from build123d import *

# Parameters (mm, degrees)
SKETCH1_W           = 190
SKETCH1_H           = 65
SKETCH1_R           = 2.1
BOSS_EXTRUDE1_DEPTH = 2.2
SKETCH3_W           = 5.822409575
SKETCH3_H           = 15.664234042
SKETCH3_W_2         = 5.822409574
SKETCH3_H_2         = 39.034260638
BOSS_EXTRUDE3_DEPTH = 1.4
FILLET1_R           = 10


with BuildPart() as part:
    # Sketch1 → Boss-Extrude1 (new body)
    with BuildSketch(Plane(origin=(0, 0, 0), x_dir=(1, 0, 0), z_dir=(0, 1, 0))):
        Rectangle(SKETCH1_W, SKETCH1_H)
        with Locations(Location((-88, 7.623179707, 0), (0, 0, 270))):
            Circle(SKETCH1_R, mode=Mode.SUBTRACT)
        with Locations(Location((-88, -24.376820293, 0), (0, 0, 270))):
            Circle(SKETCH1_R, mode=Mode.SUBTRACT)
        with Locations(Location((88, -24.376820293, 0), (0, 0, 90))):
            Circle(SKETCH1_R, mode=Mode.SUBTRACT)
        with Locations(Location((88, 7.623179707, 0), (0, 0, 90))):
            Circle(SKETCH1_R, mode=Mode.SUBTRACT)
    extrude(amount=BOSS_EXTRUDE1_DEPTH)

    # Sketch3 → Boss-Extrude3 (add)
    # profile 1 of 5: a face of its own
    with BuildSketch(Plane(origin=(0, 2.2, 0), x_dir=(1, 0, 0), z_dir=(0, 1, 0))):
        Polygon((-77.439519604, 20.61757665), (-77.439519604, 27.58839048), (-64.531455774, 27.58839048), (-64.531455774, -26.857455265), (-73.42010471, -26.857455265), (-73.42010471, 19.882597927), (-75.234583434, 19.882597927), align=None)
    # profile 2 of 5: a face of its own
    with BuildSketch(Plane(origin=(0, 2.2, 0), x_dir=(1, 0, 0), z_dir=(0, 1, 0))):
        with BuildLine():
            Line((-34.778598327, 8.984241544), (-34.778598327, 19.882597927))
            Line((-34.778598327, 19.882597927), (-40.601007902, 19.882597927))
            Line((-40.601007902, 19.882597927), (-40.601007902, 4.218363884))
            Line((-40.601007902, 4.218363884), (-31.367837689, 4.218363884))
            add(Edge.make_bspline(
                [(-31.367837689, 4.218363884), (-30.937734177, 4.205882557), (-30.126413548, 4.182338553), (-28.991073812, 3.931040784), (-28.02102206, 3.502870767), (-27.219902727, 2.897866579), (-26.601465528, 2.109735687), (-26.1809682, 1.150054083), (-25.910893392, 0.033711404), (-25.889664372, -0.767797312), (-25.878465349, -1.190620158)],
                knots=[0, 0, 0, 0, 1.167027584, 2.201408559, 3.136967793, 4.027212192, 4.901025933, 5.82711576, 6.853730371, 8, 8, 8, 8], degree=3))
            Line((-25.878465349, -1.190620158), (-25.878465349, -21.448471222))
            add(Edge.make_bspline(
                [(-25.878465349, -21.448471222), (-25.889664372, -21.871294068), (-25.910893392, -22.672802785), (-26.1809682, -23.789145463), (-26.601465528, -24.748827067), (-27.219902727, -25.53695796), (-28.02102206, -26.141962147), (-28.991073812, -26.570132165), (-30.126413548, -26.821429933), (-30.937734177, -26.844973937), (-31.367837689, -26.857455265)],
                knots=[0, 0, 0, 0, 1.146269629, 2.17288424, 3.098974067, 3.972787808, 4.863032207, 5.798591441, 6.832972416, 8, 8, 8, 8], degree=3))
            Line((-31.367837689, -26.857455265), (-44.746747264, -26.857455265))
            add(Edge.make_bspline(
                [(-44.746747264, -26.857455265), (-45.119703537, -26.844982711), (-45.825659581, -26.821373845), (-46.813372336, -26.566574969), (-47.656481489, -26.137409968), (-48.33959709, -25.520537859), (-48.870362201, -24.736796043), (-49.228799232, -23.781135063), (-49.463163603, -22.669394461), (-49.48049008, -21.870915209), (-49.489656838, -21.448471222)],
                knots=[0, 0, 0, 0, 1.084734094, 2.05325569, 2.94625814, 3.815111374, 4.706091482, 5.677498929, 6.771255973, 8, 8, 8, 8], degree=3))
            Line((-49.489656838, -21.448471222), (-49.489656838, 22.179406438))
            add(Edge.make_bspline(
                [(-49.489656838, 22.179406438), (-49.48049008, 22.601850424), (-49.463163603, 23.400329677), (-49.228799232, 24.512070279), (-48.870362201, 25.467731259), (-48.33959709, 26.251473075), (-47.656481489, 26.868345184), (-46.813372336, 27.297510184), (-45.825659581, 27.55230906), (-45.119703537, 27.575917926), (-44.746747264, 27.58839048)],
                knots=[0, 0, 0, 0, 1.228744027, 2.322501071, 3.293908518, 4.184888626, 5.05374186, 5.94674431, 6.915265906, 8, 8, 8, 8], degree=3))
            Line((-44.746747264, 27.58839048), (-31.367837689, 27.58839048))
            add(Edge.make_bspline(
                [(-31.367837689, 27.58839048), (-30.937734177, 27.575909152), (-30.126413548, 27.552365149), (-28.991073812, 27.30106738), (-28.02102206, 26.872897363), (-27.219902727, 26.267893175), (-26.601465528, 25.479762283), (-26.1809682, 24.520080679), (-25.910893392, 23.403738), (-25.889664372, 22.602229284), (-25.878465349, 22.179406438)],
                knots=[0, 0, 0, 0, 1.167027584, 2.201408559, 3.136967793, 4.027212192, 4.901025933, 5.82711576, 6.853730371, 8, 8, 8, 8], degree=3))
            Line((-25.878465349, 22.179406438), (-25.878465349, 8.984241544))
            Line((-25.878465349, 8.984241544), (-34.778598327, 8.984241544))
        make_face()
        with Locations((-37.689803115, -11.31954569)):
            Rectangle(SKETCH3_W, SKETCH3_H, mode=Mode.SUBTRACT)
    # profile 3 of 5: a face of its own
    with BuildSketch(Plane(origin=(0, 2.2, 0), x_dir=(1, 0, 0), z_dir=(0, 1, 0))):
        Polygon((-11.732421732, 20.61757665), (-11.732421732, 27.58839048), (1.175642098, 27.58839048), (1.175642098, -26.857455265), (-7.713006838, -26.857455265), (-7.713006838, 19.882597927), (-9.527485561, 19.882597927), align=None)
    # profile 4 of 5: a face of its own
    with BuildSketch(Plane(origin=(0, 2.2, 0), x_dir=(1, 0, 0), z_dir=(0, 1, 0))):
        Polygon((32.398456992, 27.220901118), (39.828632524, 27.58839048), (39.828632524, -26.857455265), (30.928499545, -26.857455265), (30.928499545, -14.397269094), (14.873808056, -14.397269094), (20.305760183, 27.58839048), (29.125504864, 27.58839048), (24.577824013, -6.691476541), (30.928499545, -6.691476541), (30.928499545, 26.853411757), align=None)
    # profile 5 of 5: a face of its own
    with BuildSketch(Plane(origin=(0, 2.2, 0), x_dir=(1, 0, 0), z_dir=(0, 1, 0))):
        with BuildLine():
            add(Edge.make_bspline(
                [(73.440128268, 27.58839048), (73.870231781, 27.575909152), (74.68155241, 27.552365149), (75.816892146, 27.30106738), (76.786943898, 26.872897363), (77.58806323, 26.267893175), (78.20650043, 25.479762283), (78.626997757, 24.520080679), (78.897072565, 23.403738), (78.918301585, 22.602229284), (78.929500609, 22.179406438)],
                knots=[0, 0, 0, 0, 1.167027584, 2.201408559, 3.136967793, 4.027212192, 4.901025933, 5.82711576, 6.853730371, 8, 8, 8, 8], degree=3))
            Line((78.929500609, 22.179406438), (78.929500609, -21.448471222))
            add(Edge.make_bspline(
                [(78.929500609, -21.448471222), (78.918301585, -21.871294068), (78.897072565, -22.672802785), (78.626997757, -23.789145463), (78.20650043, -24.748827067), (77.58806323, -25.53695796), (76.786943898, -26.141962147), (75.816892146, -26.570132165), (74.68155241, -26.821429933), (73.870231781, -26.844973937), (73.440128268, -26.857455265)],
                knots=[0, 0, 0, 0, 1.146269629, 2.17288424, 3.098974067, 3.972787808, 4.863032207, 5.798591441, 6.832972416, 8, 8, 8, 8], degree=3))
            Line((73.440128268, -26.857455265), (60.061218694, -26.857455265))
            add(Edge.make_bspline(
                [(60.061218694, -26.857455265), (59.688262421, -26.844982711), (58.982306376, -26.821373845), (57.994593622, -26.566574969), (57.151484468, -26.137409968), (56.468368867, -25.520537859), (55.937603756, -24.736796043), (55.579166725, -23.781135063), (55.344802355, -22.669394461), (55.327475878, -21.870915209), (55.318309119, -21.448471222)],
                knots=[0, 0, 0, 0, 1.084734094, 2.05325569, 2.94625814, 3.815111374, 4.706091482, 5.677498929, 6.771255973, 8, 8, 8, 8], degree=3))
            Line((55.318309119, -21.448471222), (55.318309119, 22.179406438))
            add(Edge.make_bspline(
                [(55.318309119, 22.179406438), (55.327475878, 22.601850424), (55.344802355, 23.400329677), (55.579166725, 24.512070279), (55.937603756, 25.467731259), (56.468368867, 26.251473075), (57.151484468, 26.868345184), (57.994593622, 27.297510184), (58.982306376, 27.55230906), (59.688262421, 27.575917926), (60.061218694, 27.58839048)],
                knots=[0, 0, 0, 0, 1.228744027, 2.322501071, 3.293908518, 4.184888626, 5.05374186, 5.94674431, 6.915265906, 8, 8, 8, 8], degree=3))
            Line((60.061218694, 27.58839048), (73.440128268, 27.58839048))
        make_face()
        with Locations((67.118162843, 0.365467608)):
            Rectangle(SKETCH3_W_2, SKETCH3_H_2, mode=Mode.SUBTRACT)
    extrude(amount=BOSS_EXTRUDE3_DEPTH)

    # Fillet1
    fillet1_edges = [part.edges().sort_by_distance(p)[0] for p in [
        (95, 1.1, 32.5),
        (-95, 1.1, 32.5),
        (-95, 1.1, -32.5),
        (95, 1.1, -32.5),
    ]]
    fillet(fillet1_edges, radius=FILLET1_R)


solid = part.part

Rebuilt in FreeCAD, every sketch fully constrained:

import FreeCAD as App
import Part
import Sketcher
Q = App.Units.Quantity


def edges_at(feature, points):
    """Names of the edges that pass closest to the given points."""
    edges = feature.Shape.Edges
    near = lambda p: min(range(len(edges)), key=lambda i: edges[i].distToShape(Part.Vertex(*p))[0])
    return sorted({f"Edge{near(p) + 1}" for p in points})

doc = App.newDocument("Part")
params = doc.addObject("Spreadsheet::Sheet", "Params")
for row, (alias, value) in enumerate([
    ("sketch1_diameter", "4.2 mm"),
    ("sketch1_width", "190 mm"),
    ("sketch1_height", "65 mm"),
    ("pad1_length", "2.2 mm"),
    ("pad2_length", "1.4 mm"),
    ("fillet_radius", "10 mm"),
], start=1):
    params.set(f"A{row}", alias)
    params.set(f"B{row}", "=" + value)
    params.setAlias(f"B{row}", alias)

body = doc.addObject("PartDesign::Body", "Body")

# Sketch on XZ plane
sketch1 = body.newObject("Sketcher::SketchObject", "Sketch")
sketch1.AttachmentSupport = (doc.getObject("XZ_Plane"), [""])
sketch1.MapMode = "FlatFace"
sketch1.addGeometry(Part.LineSegment(App.Vector(-95, -32.5, 0), App.Vector(-95, 32.5, 0)), False)
sketch1.addGeometry(Part.LineSegment(App.Vector(-95, 32.5, 0), App.Vector(95, 32.5, 0)), False)
sketch1.addGeometry(Part.LineSegment(App.Vector(95, 32.5, 0), App.Vector(95, -32.5, 0)), False)
sketch1.addGeometry(Part.LineSegment(App.Vector(95, -32.5, 0), App.Vector(-95, -32.5, 0)), False)
sketch1.addGeometry(Part.Circle(App.Vector(-88, 24.4, 0), App.Vector(0, 0, 1), 2.1), False)
sketch1.addGeometry(Part.Circle(App.Vector(88, 24.4, 0), App.Vector(0, 0, 1), 2.1), False)
sketch1.addGeometry(Part.Circle(App.Vector(-88, -7.6, 0), App.Vector(0, 0, 1), 2.1), False)
sketch1.addGeometry(Part.Circle(App.Vector(88, -7.6, 0), App.Vector(0, 0, 1), 2.1), False)
sketch1.addConstraint(Sketcher.Constraint("Coincident", 0, 2, 1, 1))
sketch1.addConstraint(Sketcher.Constraint("Coincident", 1, 2, 2, 1))
sketch1.addConstraint(Sketcher.Constraint("Coincident", 2, 2, 3, 1))
sketch1.addConstraint(Sketcher.Constraint("Coincident", 3, 2, 0, 1))
sketch1.addConstraint(Sketcher.Constraint("Vertical", 0))
sketch1.addConstraint(Sketcher.Constraint("Horizontal", 1))
sketch1.addConstraint(Sketcher.Constraint("Vertical", 2))
sketch1.addConstraint(Sketcher.Constraint("Horizontal", 3))
sketch1.addConstraint(Sketcher.Constraint("Equal", 4, 5))
sketch1.addConstraint(Sketcher.Constraint("Equal", 5, 6))
sketch1.addConstraint(Sketcher.Constraint("Equal", 6, 7))
sketch1.addConstraint(Sketcher.Constraint("Symmetric", 0, 2, 2, 2, -1, 1))
sketch1.addConstraint(Sketcher.Constraint("Symmetric", 4, 3, 5, 3, -2))
sketch1.addConstraint(Sketcher.Constraint("Symmetric", 6, 3, 7, 3, -2))
sketch1.addConstraint(Sketcher.Constraint("Vertical", 4, 3, 6, 3))
sketch1.addConstraint(Sketcher.Constraint("Diameter", 4, Q("4.2 mm")))
sketch1.addConstraint(Sketcher.Constraint("DistanceX", 1, 1, 1, 2, Q("190 mm")))
sketch1.addConstraint(Sketcher.Constraint("DistanceY", 0, 1, 0, 2, Q("65 mm")))
sketch1.addConstraint(Sketcher.Constraint("DistanceX", 4, 3, -1, 1, Q("88 mm")))
sketch1.addConstraint(Sketcher.Constraint("DistanceY", 6, 3, 4, 3, Q("32 mm")))
sketch1.addConstraint(Sketcher.Constraint("DistanceY", -1, 1, 4, 3, Q("24.37682 mm")))
sketch1.setExpression("Constraints[15]", "Params.sketch1_diameter")
sketch1.setExpression("Constraints[16]", "Params.sketch1_width")
sketch1.setExpression("Constraints[17]", "Params.sketch1_height")
pad1 = body.newObject("PartDesign::Pad", "Pad")
pad1.Profile = sketch1
pad1.setExpression("Length", "Params.pad1_length")
pad1.Reversed = True

# Sketch on XZ plane
sketch2 = body.newObject("Sketcher::SketchObject", "Sketch001")
sketch2.AttachmentSupport = (doc.getObject("XZ_Plane"), [""])
sketch2.MapMode = "FlatFace"
sketch2.AttachmentOffset = App.Placement(App.Vector(0, 0, -2.2), App.Rotation())
sketch2.addGeometry(Part.LineSegment(App.Vector(-77.43952, -27.58839, 0), App.Vector(-77.43952, -20.617577, 0)), False)
sketch2.addGeometry(Part.LineSegment(App.Vector(-77.43952, -20.617577, 0), App.Vector(-75.234583, -19.882598, 0)), False)
sketch2.addGeometry(Part.LineSegment(App.Vector(-75.234583, -19.882598, 0), App.Vector(-73.420105, -19.882598, 0)), False)
sketch2.addGeometry(Part.LineSegment(App.Vector(-73.420105, -19.882598, 0), App.Vector(-73.420105, 26.857455, 0)), False)
sketch2.addGeometry(Part.LineSegment(App.Vector(-73.420105, 26.857455, 0), App.Vector(-64.531456, 26.857455, 0)), False)
sketch2.addGeometry(Part.LineSegment(App.Vector(-64.531456, 26.857455, 0), App.Vector(-64.531456, -27.58839, 0)), False)
sketch2.addGeometry(Part.LineSegment(App.Vector(-64.531456, -27.58839, 0), App.Vector(-77.43952, -27.58839, 0)), False)
sketch2.addGeometry(Part.LineSegment(App.Vector(-34.778598, -19.882598, 0), App.Vector(-34.778598, -8.984242, 0)), False)
sketch2.addGeometry(Part.LineSegment(App.Vector(-34.778598, -8.984242, 0), App.Vector(-25.878465, -8.984242, 0)), False)
sketch2.addGeometry(Part.LineSegment(App.Vector(-25.878465, -8.984242, 0), App.Vector(-25.878465, -22.179406, 0)), False)
sketch2.addGeometry(Part.BSplineCurve([App.Vector(-31.367838, -27.58839, 0), App.Vector(-30.937734, -27.575909, 0), App.Vector(-30.126414, -27.552365, 0), App.Vector(-28.991074, -27.301067, 0), App.Vector(-28.021022, -26.872897, 0), App.Vector(-27.219903, -26.267893, 0), App.Vector(-26.601466, -25.479762, 0), App.Vector(-26.180968, -24.520081, 0), App.Vector(-25.910893, -23.403738, 0), App.Vector(-25.889664, -22.602229, 0), App.Vector(-25.878465, -22.179406, 0)], [4, 1, 1, 1, 1, 1, 1, 1, 4], [0, 1.167027584, 2.201408559, 3.136967793, 4.027212192, 4.901025933, 5.82711576, 6.853730371, 8], False, 3, [1, 1, 1, 1, 1, 1, 1, 1, 1, 1, 1], False), False)
sketch2.addGeometry(Part.LineSegment(App.Vector(-31.367838, -27.58839, 0), App.Vector(-44.746747, -27.58839, 0)), False)
sketch2.addGeometry(Part.BSplineCurve([App.Vector(-49.489657, -22.179406, 0), App.Vector(-49.48049, -22.60185, 0), App.Vector(-49.463164, -23.40033, 0), App.Vector(-49.228799, -24.51207, 0), App.Vector(-48.870362, -25.467731, 0), App.Vector(-48.339597, -26.251473, 0), App.Vector(-47.656481, -26.868345, 0), App.Vector(-46.813372, -27.29751, 0), App.Vector(-45.82566, -27.552309, 0), App.Vector(-45.119704, -27.575918, 0), App.Vector(-44.746747, -27.58839, 0)], [4, 1, 1, 1, 1, 1, 1, 1, 4], [0, 1.228744027, 2.322501071, 3.293908518, 4.184888626, 5.05374186, 5.94674431, 6.915265906, 8], False, 3, [1, 1, 1, 1, 1, 1, 1, 1, 1, 1, 1], False), False)
sketch2.addGeometry(Part.LineSegment(App.Vector(-49.489657, -22.179406, 0), App.Vector(-49.489657, 21.448471, 0)), False)
sketch2.addGeometry(Part.BSplineCurve([App.Vector(-44.746747, 26.857455, 0), App.Vector(-45.119704, 26.844983, 0), App.Vector(-45.82566, 26.821374, 0), App.Vector(-46.813372, 26.566575, 0), App.Vector(-47.656481, 26.13741, 0), App.Vector(-48.339597, 25.520538, 0), App.Vector(-48.870362, 24.736796, 0), App.Vector(-49.228799, 23.781135, 0), App.Vector(-49.463164, 22.669394, 0), App.Vector(-49.48049, 21.870915, 0), App.Vector(-49.489657, 21.448471, 0)], [4, 1, 1, 1, 1, 1, 1, 1, 4], [0, 1.084734094, 2.05325569, 2.94625814, 3.815111374, 4.706091482, 5.677498929, 6.771255973, 8], False, 3, [1, 1, 1, 1, 1, 1, 1, 1, 1, 1, 1], False), False)
sketch2.addGeometry(Part.LineSegment(App.Vector(-44.746747, 26.857455, 0), App.Vector(-31.367838, 26.857455, 0)), False)
sketch2.addGeometry(Part.BSplineCurve([App.Vector(-25.878465, 21.448471, 0), App.Vector(-25.889664, 21.871294, 0), App.Vector(-25.910893, 22.672803, 0), App.Vector(-26.180968, 23.789145, 0), App.Vector(-26.601466, 24.748827, 0), App.Vector(-27.219903, 25.536958, 0), App.Vector(-28.021022, 26.141962, 0), App.Vector(-28.991074, 26.570132, 0), App.Vector(-30.126414, 26.82143, 0), App.Vector(-30.937734, 26.844974, 0), App.Vector(-31.367838, 26.857455, 0)], [4, 1, 1, 1, 1, 1, 1, 1, 4], [0, 1.146269629, 2.17288424, 3.098974067, 3.972787808, 4.863032207, 5.798591441, 6.832972416, 8], False, 3, [1, 1, 1, 1, 1, 1, 1, 1, 1, 1, 1], False), False)
sketch2.addGeometry(Part.LineSegment(App.Vector(-25.878465, 21.448471, 0), App.Vector(-25.878465, 1.19062, 0)), False)
sketch2.addGeometry(Part.BSplineCurve([App.Vector(-31.367838, -4.218364, 0), App.Vector(-30.937734, -4.205883, 0), App.Vector(-30.126414, -4.182339, 0), App.Vector(-28.991074, -3.931041, 0), App.Vector(-28.021022, -3.502871, 0), App.Vector(-27.219903, -2.897867, 0), App.Vector(-26.601466, -2.109736, 0), App.Vector(-26.180968, -1.150054, 0), App.Vector(-25.910893, -0.033711, 0), App.Vector(-25.889664, 0.767797, 0), App.Vector(-25.878465, 1.19062, 0)], [4, 1, 1, 1, 1, 1, 1, 1, 4], [0, 1.167027584, 2.201408559, 3.136967793, 4.027212192, 4.901025933, 5.82711576, 6.853730371, 8], False, 3, [1, 1, 1, 1, 1, 1, 1, 1, 1, 1, 1], False), False)
sketch2.addGeometry(Part.LineSegment(App.Vector(-31.367838, -4.218364, 0), App.Vector(-40.601008, -4.218364, 0)), False)
sketch2.addGeometry(Part.LineSegment(App.Vector(-40.601008, -4.218364, 0), App.Vector(-40.601008, -19.882598, 0)), False)
sketch2.addGeometry(Part.LineSegment(App.Vector(-40.601008, -19.882598, 0), App.Vector(-34.778598, -19.882598, 0)), False)
sketch2.addGeometry(Part.LineSegment(App.Vector(-40.601008, 19.151663, 0), App.Vector(-40.601008, 3.487429, 0)), False)
sketch2.addGeometry(Part.LineSegment(App.Vector(-40.601008, 3.487429, 0), App.Vector(-34.778598, 3.487429, 0)), False)
sketch2.addGeometry(Part.LineSegment(App.Vector(-34.778598, 3.487429, 0), App.Vector(-34.778598, 19.151663, 0)), False)
sketch2.addGeometry(Part.LineSegment(App.Vector(-34.778598, 19.151663, 0), App.Vector(-40.601008, 19.151663, 0)), False)
sketch2.addGeometry(Part.LineSegment(App.Vector(-11.732422, -27.58839, 0), App.Vector(-11.732422, -20.617577, 0)), False)
sketch2.addGeometry(Part.LineSegment(App.Vector(-11.732422, -20.617577, 0), App.Vector(-9.527486, -19.882598, 0)), False)
sketch2.addGeometry(Part.LineSegment(App.Vector(-9.527486, -19.882598, 0), App.Vector(-7.713007, -19.882598, 0)), False)
sketch2.addGeometry(Part.LineSegment(App.Vector(-7.713007, -19.882598, 0), App.Vector(-7.713007, 26.857455, 0)), False)
sketch2.addGeometry(Part.LineSegment(App.Vector(-7.713007, 26.857455, 0), App.Vector(1.175642, 26.857455, 0)), False)
sketch2.addGeometry(Part.LineSegment(App.Vector(1.175642, 26.857455, 0), App.Vector(1.175642, -27.58839, 0)), False)
sketch2.addGeometry(Part.LineSegment(App.Vector(1.175642, -27.58839, 0), App.Vector(-11.732422, -27.58839, 0)), False)
sketch2.addGeometry(Part.LineSegment(App.Vector(39.828633, -27.58839, 0), App.Vector(32.398457, -27.220901, 0)), False)
sketch2.addGeometry(Part.LineSegment(App.Vector(32.398457, -27.220901, 0), App.Vector(30.9285, -26.853412, 0)), False)
sketch2.addGeometry(Part.LineSegment(App.Vector(30.9285, -26.853412, 0), App.Vector(30.9285, 6.691477, 0)), False)
sketch2.addGeometry(Part.LineSegment(App.Vector(30.9285, 6.691477, 0), App.Vector(24.577824, 6.691477, 0)), False)
sketch2.addGeometry(Part.LineSegment(App.Vector(24.577824, 6.691477, 0), App.Vector(29.125505, -27.58839, 0)), False)
sketch2.addGeometry(Part.LineSegment(App.Vector(29.125505, -27.58839, 0), App.Vector(20.30576, -27.58839, 0)), False)
sketch2.addGeometry(Part.LineSegment(App.Vector(20.30576, -27.58839, 0), App.Vector(14.873808, 14.397269, 0)), False)
sketch2.addGeometry(Part.LineSegment(App.Vector(14.873808, 14.397269, 0), App.Vector(30.9285, 14.397269, 0)), False)
sketch2.addGeometry(Part.LineSegment(App.Vector(30.9285, 14.397269, 0), App.Vector(30.9285, 26.857455, 0)), False)
sketch2.addGeometry(Part.LineSegment(App.Vector(30.9285, 26.857455, 0), App.Vector(39.828633, 26.857455, 0)), False)
sketch2.addGeometry(Part.LineSegment(App.Vector(39.828633, 26.857455, 0), App.Vector(39.828633, -27.58839, 0)), False)
sketch2.addGeometry(Part.BSplineCurve([App.Vector(73.440128, -27.58839, 0), App.Vector(73.870232, -27.575909, 0), App.Vector(74.681552, -27.552365, 0), App.Vector(75.816892, -27.301067, 0), App.Vector(76.786944, -26.872897, 0), App.Vector(77.588063, -26.267893, 0), App.Vector(78.2065, -25.479762, 0), App.Vector(78.626998, -24.520081, 0), App.Vector(78.897073, -23.403738, 0), App.Vector(78.918302, -22.602229, 0), App.Vector(78.929501, -22.179406, 0)], [4, 1, 1, 1, 1, 1, 1, 1, 4], [0, 1.167027584, 2.201408559, 3.136967793, 4.027212192, 4.901025933, 5.82711576, 6.853730371, 8], False, 3, [1, 1, 1, 1, 1, 1, 1, 1, 1, 1, 1], False), False)
sketch2.addGeometry(Part.LineSegment(App.Vector(73.440128, -27.58839, 0), App.Vector(60.061219, -27.58839, 0)), False)
sketch2.addGeometry(Part.BSplineCurve([App.Vector(55.318309, -22.179406, 0), App.Vector(55.327476, -22.60185, 0), App.Vector(55.344802, -23.40033, 0), App.Vector(55.579167, -24.51207, 0), App.Vector(55.937604, -25.467731, 0), App.Vector(56.468369, -26.251473, 0), App.Vector(57.151484, -26.868345, 0), App.Vector(57.994594, -27.29751, 0), App.Vector(58.982306, -27.552309, 0), App.Vector(59.688262, -27.575918, 0), App.Vector(60.061219, -27.58839, 0)], [4, 1, 1, 1, 1, 1, 1, 1, 4], [0, 1.228744027, 2.322501071, 3.293908518, 4.184888626, 5.05374186, 5.94674431, 6.915265906, 8], False, 3, [1, 1, 1, 1, 1, 1, 1, 1, 1, 1, 1], False), False)
sketch2.addGeometry(Part.LineSegment(App.Vector(55.318309, -22.179406, 0), App.Vector(55.318309, 21.448471, 0)), False)
sketch2.addGeometry(Part.BSplineCurve([App.Vector(60.061219, 26.857455, 0), App.Vector(59.688262, 26.844983, 0), App.Vector(58.982306, 26.821374, 0), App.Vector(57.994594, 26.566575, 0), App.Vector(57.151484, 26.13741, 0), App.Vector(56.468369, 25.520538, 0), App.Vector(55.937604, 24.736796, 0), App.Vector(55.579167, 23.781135, 0), App.Vector(55.344802, 22.669394, 0), App.Vector(55.327476, 21.870915, 0), App.Vector(55.318309, 21.448471, 0)], [4, 1, 1, 1, 1, 1, 1, 1, 4], [0, 1.084734094, 2.05325569, 2.94625814, 3.815111374, 4.706091482, 5.677498929, 6.771255973, 8], False, 3, [1, 1, 1, 1, 1, 1, 1, 1, 1, 1, 1], False), False)
sketch2.addGeometry(Part.LineSegment(App.Vector(60.061219, 26.857455, 0), App.Vector(73.440128, 26.857455, 0)), False)
sketch2.addGeometry(Part.BSplineCurve([App.Vector(78.929501, 21.448471, 0), App.Vector(78.918302, 21.871294, 0), App.Vector(78.897073, 22.672803, 0), App.Vector(78.626998, 23.789145, 0), App.Vector(78.2065, 24.748827, 0), App.Vector(77.588063, 25.536958, 0), App.Vector(76.786944, 26.141962, 0), App.Vector(75.816892, 26.570132, 0), App.Vector(74.681552, 26.82143, 0), App.Vector(73.870232, 26.844974, 0), App.Vector(73.440128, 26.857455, 0)], [4, 1, 1, 1, 1, 1, 1, 1, 4], [0, 1.146269629, 2.17288424, 3.098974067, 3.972787808, 4.863032207, 5.798591441, 6.832972416, 8], False, 3, [1, 1, 1, 1, 1, 1, 1, 1, 1, 1, 1], False), False)
sketch2.addGeometry(Part.LineSegment(App.Vector(78.929501, 21.448471, 0), App.Vector(78.929501, -22.179406, 0)), False)
sketch2.addGeometry(Part.LineSegment(App.Vector(64.206958, 19.151663, 0), App.Vector(64.206958, -19.882598, 0)), False)
sketch2.addGeometry(Part.LineSegment(App.Vector(64.206958, -19.882598, 0), App.Vector(70.029368, -19.882598, 0)), False)
sketch2.addGeometry(Part.LineSegment(App.Vector(70.029368, -19.882598, 0), App.Vector(70.029368, 19.151663, 0)), False)
sketch2.addGeometry(Part.LineSegment(App.Vector(70.029368, 19.151663, 0), App.Vector(64.206958, 19.151663, 0)), False)
sketch2.addConstraint(Sketcher.Constraint("Block", 10))
sketch2.addConstraint(Sketcher.Constraint("Block", 12))
sketch2.addConstraint(Sketcher.Constraint("Block", 14))
sketch2.addConstraint(Sketcher.Constraint("Block", 16))
sketch2.addConstraint(Sketcher.Constraint("Block", 18))
sketch2.addConstraint(Sketcher.Constraint("Block", 44))
sketch2.addConstraint(Sketcher.Constraint("Block", 46))
sketch2.addConstraint(Sketcher.Constraint("Block", 48))
sketch2.addConstraint(Sketcher.Constraint("Block", 50))
sketch2.addConstraint(Sketcher.Constraint("Coincident", 0, 2, 1, 1))
sketch2.addConstraint(Sketcher.Constraint("Coincident", 1, 2, 2, 1))
sketch2.addConstraint(Sketcher.Constraint("Coincident", 2, 2, 3, 1))
sketch2.addConstraint(Sketcher.Constraint("Coincident", 3, 2, 4, 1))
sketch2.addConstraint(Sketcher.Constraint("Coincident", 4, 2, 5, 1))
sketch2.addConstraint(Sketcher.Constraint("Coincident", 5, 2, 6, 1))
sketch2.addConstraint(Sketcher.Constraint("Coincident", 6, 2, 0, 1))
sketch2.addConstraint(Sketcher.Constraint("Coincident", 7, 2, 8, 1))
sketch2.addConstraint(Sketcher.Constraint("Coincident", 8, 2, 9, 1))
sketch2.addConstraint(Sketcher.Constraint("Coincident", 9, 2, 10, 2))
sketch2.addConstraint(Sketcher.Constraint("Coincident", 10, 1, 11, 1))
sketch2.addConstraint(Sketcher.Constraint("Coincident", 11, 2, 12, 2))
sketch2.addConstraint(Sketcher.Constraint("Coincident", 12, 1, 13, 1))
sketch2.addConstraint(Sketcher.Constraint("Coincident", 13, 2, 14, 2))
sketch2.addConstraint(Sketcher.Constraint("Coincident", 14, 1, 15, 1))
sketch2.addConstraint(Sketcher.Constraint("Coincident", 15, 2, 16, 2))
sketch2.addConstraint(Sketcher.Constraint("Coincident", 16, 1, 17, 1))
sketch2.addConstraint(Sketcher.Constraint("Coincident", 17, 2, 18, 2))
sketch2.addConstraint(Sketcher.Constraint("Coincident", 18, 1, 19, 1))
sketch2.addConstraint(Sketcher.Constraint("Coincident", 19, 2, 20, 1))
sketch2.addConstraint(Sketcher.Constraint("Coincident", 20, 2, 21, 1))
sketch2.addConstraint(Sketcher.Constraint("Coincident", 21, 2, 7, 1))
sketch2.addConstraint(Sketcher.Constraint("Coincident", 22, 2, 23, 1))
sketch2.addConstraint(Sketcher.Constraint("Coincident", 23, 2, 24, 1))
sketch2.addConstraint(Sketcher.Constraint("Coincident", 24, 2, 25, 1))
sketch2.addConstraint(Sketcher.Constraint("Coincident", 25, 2, 22, 1))
sketch2.addConstraint(Sketcher.Constraint("Coincident", 26, 2, 27, 1))
sketch2.addConstraint(Sketcher.Constraint("Coincident", 27, 2, 28, 1))
sketch2.addConstraint(Sketcher.Constraint("Coincident", 28, 2, 29, 1))
sketch2.addConstraint(Sketcher.Constraint("Coincident", 29, 2, 30, 1))
sketch2.addConstraint(Sketcher.Constraint("Coincident", 30, 2, 31, 1))
sketch2.addConstraint(Sketcher.Constraint("Coincident", 31, 2, 32, 1))
sketch2.addConstraint(Sketcher.Constraint("Coincident", 32, 2, 26, 1))
sketch2.addConstraint(Sketcher.Constraint("Coincident", 33, 2, 34, 1))
sketch2.addConstraint(Sketcher.Constraint("Coincident", 34, 2, 35, 1))
sketch2.addConstraint(Sketcher.Constraint("Coincident", 35, 2, 36, 1))
sketch2.addConstraint(Sketcher.Constraint("Coincident", 36, 2, 37, 1))
sketch2.addConstraint(Sketcher.Constraint("Coincident", 37, 2, 38, 1))
sketch2.addConstraint(Sketcher.Constraint("Coincident", 38, 2, 39, 1))
sketch2.addConstraint(Sketcher.Constraint("Coincident", 39, 2, 40, 1))
sketch2.addConstraint(Sketcher.Constraint("Coincident", 40, 2, 41, 1))
sketch2.addConstraint(Sketcher.Constraint("Coincident", 41, 2, 42, 1))
sketch2.addConstraint(Sketcher.Constraint("Coincident", 42, 2, 43, 1))
sketch2.addConstraint(Sketcher.Constraint("Coincident", 43, 2, 33, 1))
sketch2.addConstraint(Sketcher.Constraint("Coincident", 44, 1, 45, 1))
sketch2.addConstraint(Sketcher.Constraint("Coincident", 45, 2, 46, 2))
sketch2.addConstraint(Sketcher.Constraint("Coincident", 46, 1, 47, 1))
sketch2.addConstraint(Sketcher.Constraint("Coincident", 47, 2, 48, 2))
sketch2.addConstraint(Sketcher.Constraint("Coincident", 48, 1, 49, 1))
sketch2.addConstraint(Sketcher.Constraint("Coincident", 49, 2, 50, 2))
sketch2.addConstraint(Sketcher.Constraint("Coincident", 50, 1, 51, 1))
sketch2.addConstraint(Sketcher.Constraint("Coincident", 51, 2, 44, 2))
sketch2.addConstraint(Sketcher.Constraint("Coincident", 52, 2, 53, 1))
sketch2.addConstraint(Sketcher.Constraint("Coincident", 53, 2, 54, 1))
sketch2.addConstraint(Sketcher.Constraint("Coincident", 54, 2, 55, 1))
sketch2.addConstraint(Sketcher.Constraint("Coincident", 55, 2, 52, 1))
sketch2.addConstraint(Sketcher.Constraint("Vertical", 0))
sketch2.addConstraint(Sketcher.Constraint("Horizontal", 2))
sketch2.addConstraint(Sketcher.Constraint("Vertical", 3))
sketch2.addConstraint(Sketcher.Constraint("Horizontal", 4))
sketch2.addConstraint(Sketcher.Constraint("Vertical", 5))
sketch2.addConstraint(Sketcher.Constraint("Horizontal", 6))
sketch2.addConstraint(Sketcher.Constraint("Vertical", 7))
sketch2.addConstraint(Sketcher.Constraint("Horizontal", 8))
sketch2.addConstraint(Sketcher.Constraint("Vertical", 9))
sketch2.addConstraint(Sketcher.Constraint("Horizontal", 19))
sketch2.addConstraint(Sketcher.Constraint("Vertical", 20))
sketch2.addConstraint(Sketcher.Constraint("Horizontal", 21))
sketch2.addConstraint(Sketcher.Constraint("Vertical", 22))
sketch2.addConstraint(Sketcher.Constraint("Horizontal", 23))
sketch2.addConstraint(Sketcher.Constraint("Vertical", 24))
sketch2.addConstraint(Sketcher.Constraint("Horizontal", 25))
sketch2.addConstraint(Sketcher.Constraint("Vertical", 26))
sketch2.addConstraint(Sketcher.Constraint("Horizontal", 28))
sketch2.addConstraint(Sketcher.Constraint("Vertical", 29))
sketch2.addConstraint(Sketcher.Constraint("Horizontal", 30))
sketch2.addConstraint(Sketcher.Constraint("Vertical", 31))
sketch2.addConstraint(Sketcher.Constraint("Horizontal", 32))
sketch2.addConstraint(Sketcher.Constraint("Vertical", 35))
sketch2.addConstraint(Sketcher.Constraint("Horizontal", 36))
sketch2.addConstraint(Sketcher.Constraint("Horizontal", 38))
sketch2.addConstraint(Sketcher.Constraint("Horizontal", 40))
sketch2.addConstraint(Sketcher.Constraint("Vertical", 41))
sketch2.addConstraint(Sketcher.Constraint("Horizontal", 42))
sketch2.addConstraint(Sketcher.Constraint("Vertical", 43))
sketch2.addConstraint(Sketcher.Constraint("Vertical", 52))
sketch2.addConstraint(Sketcher.Constraint("Horizontal", 53))
sketch2.addConstraint(Sketcher.Constraint("Vertical", 54))
sketch2.addConstraint(Sketcher.Constraint("Horizontal", 55))
sketch2.addConstraint(Sketcher.Constraint("DistanceX", 25, 2, 29, 2, Q("32.888001 mm")))
sketch2.addConstraint(Sketcher.Constraint("DistanceX", 34, 2, 51, 2, Q("48.001001 mm")))
sketch2.addConstraint(Sketcher.Constraint("DistanceX", 2, 1, 2, 2, Q("1.814479 mm")))
sketch2.addConstraint(Sketcher.Constraint("DistanceX", 4, 1, 4, 2, Q("8.888649 mm")))
sketch2.addConstraint(Sketcher.Constraint("DistanceX", 19, 2, 19, 1, Q("9.23317 mm")))
sketch2.addConstraint(Sketcher.Constraint("DistanceX", 21, 1, 21, 2, Q("5.82241 mm")))
sketch2.addConstraint(Sketcher.Constraint("DistanceX", 23, 1, 23, 2, Q("5.82241 mm")))
sketch2.addConstraint(Sketcher.Constraint("DistanceX", 28, 1, 28, 2, Q("1.814479 mm")))
sketch2.addConstraint(Sketcher.Constraint("DistanceX", 30, 1, 30, 2, Q("8.888649 mm")))
sketch2.addConstraint(Sketcher.Constraint("DistanceX", 40, 1, 40, 2, Q("16.054691 mm")))
sketch2.addConstraint(Sketcher.Constraint("DistanceX", 53, 1, 53, 2, Q("5.82241 mm")))
sketch2.addConstraint(Sketcher.Constraint("DistanceY", 35, 1, 35, 2, Q("33.544888 mm")))
sketch2.addConstraint(Sketcher.Constraint("DistanceY", 52, 2, 52, 1, Q("39.034261 mm")))
sketch2.addConstraint(Sketcher.Constraint("DistanceX", 23, 2, -1, 1, Q("34.778598 mm")))
sketch2.addConstraint(Sketcher.Constraint("DistanceY", 33, 2, -1, 1, Q("27.220901 mm")))
sketch2.addConstraint(Sketcher.Constraint("DistanceX", -1, 1, 40, 2, Q("30.9285 mm")))
sketch2.addConstraint(Sketcher.Constraint("DistanceX", 4, 2, 13, 2, Q("15.041799 mm")))
sketch2.addConstraint(Sketcher.Constraint("DistanceX", 33, 2, 52, 2, Q("31.808501 mm")))
sketch2.addConstraint(Sketcher.Constraint("DistanceX", 6, 2, 6, 1, Q("12.908064 mm")))
sketch2.addConstraint(Sketcher.Constraint("DistanceX", 32, 2, 32, 1, Q("12.908064 mm")))
sketch2.addConstraint(Sketcher.Constraint("DistanceX", 36, 2, 36, 1, Q("6.350676 mm")))
sketch2.addConstraint(Sketcher.Constraint("DistanceX", 38, 2, 38, 1, Q("8.819745 mm")))
sketch2.addConstraint(Sketcher.Constraint("DistanceX", 42, 1, 42, 2, Q("8.900133 mm")))
sketch2.addConstraint(Sketcher.Constraint("DistanceY", 0, 1, 0, 2, Q("6.970814 mm")))
sketch2.addConstraint(Sketcher.Constraint("DistanceY", 3, 1, 3, 2, Q("46.740053 mm")))
sketch2.addConstraint(Sketcher.Constraint("DistanceY", 5, 2, 5, 1, Q("54.445846 mm")))
sketch2.addConstraint(Sketcher.Constraint("DistanceY", 7, 1, 7, 2, Q("10.898356 mm")))
sketch2.addConstraint(Sketcher.Constraint("DistanceY", 9, 2, 9, 1, Q("13.195165 mm")))
sketch2.addConstraint(Sketcher.Constraint("DistanceY", 22, 2, 22, 1, Q("15.664234 mm")))
sketch2.addConstraint(Sketcher.Constraint("DistanceY", 26, 1, 26, 2, Q("6.970814 mm")))
sketch2.addConstraint(Sketcher.Constraint("DistanceY", 29, 1, 29, 2, Q("46.740053 mm")))
sketch2.addConstraint(Sketcher.Constraint("DistanceY", 31, 2, 31, 1, Q("54.445846 mm")))
sketch2.addConstraint(Sketcher.Constraint("DistanceY", 41, 1, 41, 2, Q("12.460186 mm")))
sketch2.addConstraint(Sketcher.Constraint("DistanceY", 43, 2, 43, 1, Q("54.445846 mm")))
sketch2.addConstraint(Sketcher.Constraint("DistanceY", 5, 2, -1, 1, Q("27.58839 mm")))
sketch2.addConstraint(Sketcher.Constraint("DistanceY", -1, 1, 22, 2, Q("3.487429 mm")))
sketch2.addConstraint(Sketcher.Constraint("DistanceY", 31, 2, -1, 1, Q("27.58839 mm")))
sketch2.addConstraint(Sketcher.Constraint("DistanceY", 34, 2, -1, 1, Q("26.853412 mm")))
sketch2.addConstraint(Sketcher.Constraint("DistanceY", 37, 2, -1, 1, Q("27.58839 mm")))
sketch2.addConstraint(Sketcher.Constraint("DistanceX", -1, 1, 38, 2, Q("20.30576 mm")))
sketch2.addConstraint(Sketcher.Constraint("DistanceY", -1, 1, 39, 2, Q("14.397269 mm")))
sketch2.addConstraint(Sketcher.Constraint("DistanceX", -1, 1, 52, 2, Q("64.206958 mm")))
sketch2.addConstraint(Sketcher.Constraint("DistanceY", 51, 2, 52, 2, Q("2.296809 mm")))
pad2 = body.newObject("PartDesign::Pad", "Pad001")
pad2.Profile = sketch2
pad2.setExpression("Length", "Params.pad2_length")
pad2.Reversed = True
doc.recompute()

fillet = body.newObject("PartDesign::Fillet", "Fillet")
fillet.Base = (pad2, edges_at(pad2, [
    (95, 1.1, 32.5),
    (-95, 1.1, 32.5),
    (-95, 1.1, -32.5),
    (95, 1.1, -32.5),
]))
fillet.setExpression("Radius", "Params.fillet_radius")

doc.recompute()
